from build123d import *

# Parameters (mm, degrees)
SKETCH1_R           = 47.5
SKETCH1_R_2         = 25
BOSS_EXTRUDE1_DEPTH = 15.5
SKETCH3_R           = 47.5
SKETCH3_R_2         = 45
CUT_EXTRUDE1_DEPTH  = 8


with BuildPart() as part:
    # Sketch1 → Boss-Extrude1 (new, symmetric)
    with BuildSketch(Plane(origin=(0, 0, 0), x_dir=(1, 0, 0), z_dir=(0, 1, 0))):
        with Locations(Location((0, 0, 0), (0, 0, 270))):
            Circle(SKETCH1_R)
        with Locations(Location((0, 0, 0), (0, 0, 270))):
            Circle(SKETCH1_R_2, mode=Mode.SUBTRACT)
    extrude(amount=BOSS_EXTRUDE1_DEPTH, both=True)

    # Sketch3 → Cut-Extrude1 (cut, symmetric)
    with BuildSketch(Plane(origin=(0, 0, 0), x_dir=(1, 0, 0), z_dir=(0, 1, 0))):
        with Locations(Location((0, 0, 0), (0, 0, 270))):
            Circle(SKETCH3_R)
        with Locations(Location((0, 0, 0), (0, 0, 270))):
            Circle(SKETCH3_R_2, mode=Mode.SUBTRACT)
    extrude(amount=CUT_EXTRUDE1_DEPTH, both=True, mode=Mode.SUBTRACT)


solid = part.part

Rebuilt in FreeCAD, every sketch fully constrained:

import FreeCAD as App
import Part
import Sketcher
Q = App.Units.Quantity

doc = App.newDocument("Part")
params = doc.addObject("Spreadsheet::Sheet", "Params")
for row, (alias, value) in enumerate([
    ("sketch1_diameter", "95 mm"),
    ("sketch1_diameter2", "50 mm"),
    ("pad1_length", "31 mm"),
    ("sketch2_diameter", "95 mm"),
    ("sketch2_diameter2", "90 mm"),
    ("pocket1_length", "16 mm"),
], start=1):
    params.set(f"A{row}", alias)
    params.set(f"B{row}", "=" + value)
    params.setAlias(f"B{row}", alias)

body = doc.addObject("PartDesign::Body", "Body")

# Sketch on XZ plane
sketch1 = doc.addObject("Sketcher::SketchObject", "Sketch")
body.addObject(sketch1)
sketch1.AttachmentSupport = (doc.XZ_Plane, [""])
sketch1.MapMode = "FlatFace"
sketch1.addGeometry([
    Part.Circle(App.Vector(0, 0, 0), App.Vector(0, 0, 1), 48),
    Part.Circle(App.Vector(0, 0, 0), App.Vector(0, 0, 1), 25),
], False)
sketch1.addConstraint([
    Sketcher.Constraint("Coincident", 0, 3, -1, 1),
    Sketcher.Constraint("Coincident", 1, 3, -1, 1),
    Sketcher.Constraint("Diameter", 0, Q("95 mm")),
    Sketcher.Constraint("Diameter", 1, Q("50 mm")),
])
sketch1.setExpression("Constraints[2]", "Params.sketch1_diameter")
sketch1.setExpression("Constraints[3]", "Params.sketch1_diameter2")
pad1 = doc.addObject("PartDesign::Pad", "Pad")
body.addObject(pad1)
pad1.Profile = sketch1
pad1.setExpression("Length", "Params.pad1_length")
pad1.Midplane = True

# Sketch on XZ plane
sketch2 = doc.addObject("Sketcher::SketchObject", "Sketch001")
body.addObject(sketch2)
sketch2.AttachmentSupport = (doc.XZ_Plane, [""])
sketch2.MapMode = "FlatFace"
sketch2.addGeometry([
    Part.Circle(App.Vector(0, 0, 0), App.Vector(0, 0, 1), 48),
    Part.Circle(App.Vector(0, 0, 0), App.Vector(0, 0, 1), 45),
], False)
sketch2.addConstraint([
    Sketcher.Constraint("Coincident", 0, 3, -1, 1),
    Sketcher.Constraint("Coincident", 1, 3, -1, 1),
    Sketcher.Constraint("Diameter", 0, Q("95 mm")),
    Sketcher.Constraint("Diameter", 1, Q("90 mm")),
])
sketch2.setExpression("Constraints[2]", "Params.sketch2_diameter")
sketch2.setExpression("Constraints[3]", "Params.sketch2_diameter2")
pocket1 = doc.addObject("PartDesign::Pocket", "Pocket")
body.addObject(pocket1)
pocket1.Profile = sketch2
pocket1.setExpression("Length", "Params.pocket1_length")
pocket1.Midplane = True

doc.recompute()
